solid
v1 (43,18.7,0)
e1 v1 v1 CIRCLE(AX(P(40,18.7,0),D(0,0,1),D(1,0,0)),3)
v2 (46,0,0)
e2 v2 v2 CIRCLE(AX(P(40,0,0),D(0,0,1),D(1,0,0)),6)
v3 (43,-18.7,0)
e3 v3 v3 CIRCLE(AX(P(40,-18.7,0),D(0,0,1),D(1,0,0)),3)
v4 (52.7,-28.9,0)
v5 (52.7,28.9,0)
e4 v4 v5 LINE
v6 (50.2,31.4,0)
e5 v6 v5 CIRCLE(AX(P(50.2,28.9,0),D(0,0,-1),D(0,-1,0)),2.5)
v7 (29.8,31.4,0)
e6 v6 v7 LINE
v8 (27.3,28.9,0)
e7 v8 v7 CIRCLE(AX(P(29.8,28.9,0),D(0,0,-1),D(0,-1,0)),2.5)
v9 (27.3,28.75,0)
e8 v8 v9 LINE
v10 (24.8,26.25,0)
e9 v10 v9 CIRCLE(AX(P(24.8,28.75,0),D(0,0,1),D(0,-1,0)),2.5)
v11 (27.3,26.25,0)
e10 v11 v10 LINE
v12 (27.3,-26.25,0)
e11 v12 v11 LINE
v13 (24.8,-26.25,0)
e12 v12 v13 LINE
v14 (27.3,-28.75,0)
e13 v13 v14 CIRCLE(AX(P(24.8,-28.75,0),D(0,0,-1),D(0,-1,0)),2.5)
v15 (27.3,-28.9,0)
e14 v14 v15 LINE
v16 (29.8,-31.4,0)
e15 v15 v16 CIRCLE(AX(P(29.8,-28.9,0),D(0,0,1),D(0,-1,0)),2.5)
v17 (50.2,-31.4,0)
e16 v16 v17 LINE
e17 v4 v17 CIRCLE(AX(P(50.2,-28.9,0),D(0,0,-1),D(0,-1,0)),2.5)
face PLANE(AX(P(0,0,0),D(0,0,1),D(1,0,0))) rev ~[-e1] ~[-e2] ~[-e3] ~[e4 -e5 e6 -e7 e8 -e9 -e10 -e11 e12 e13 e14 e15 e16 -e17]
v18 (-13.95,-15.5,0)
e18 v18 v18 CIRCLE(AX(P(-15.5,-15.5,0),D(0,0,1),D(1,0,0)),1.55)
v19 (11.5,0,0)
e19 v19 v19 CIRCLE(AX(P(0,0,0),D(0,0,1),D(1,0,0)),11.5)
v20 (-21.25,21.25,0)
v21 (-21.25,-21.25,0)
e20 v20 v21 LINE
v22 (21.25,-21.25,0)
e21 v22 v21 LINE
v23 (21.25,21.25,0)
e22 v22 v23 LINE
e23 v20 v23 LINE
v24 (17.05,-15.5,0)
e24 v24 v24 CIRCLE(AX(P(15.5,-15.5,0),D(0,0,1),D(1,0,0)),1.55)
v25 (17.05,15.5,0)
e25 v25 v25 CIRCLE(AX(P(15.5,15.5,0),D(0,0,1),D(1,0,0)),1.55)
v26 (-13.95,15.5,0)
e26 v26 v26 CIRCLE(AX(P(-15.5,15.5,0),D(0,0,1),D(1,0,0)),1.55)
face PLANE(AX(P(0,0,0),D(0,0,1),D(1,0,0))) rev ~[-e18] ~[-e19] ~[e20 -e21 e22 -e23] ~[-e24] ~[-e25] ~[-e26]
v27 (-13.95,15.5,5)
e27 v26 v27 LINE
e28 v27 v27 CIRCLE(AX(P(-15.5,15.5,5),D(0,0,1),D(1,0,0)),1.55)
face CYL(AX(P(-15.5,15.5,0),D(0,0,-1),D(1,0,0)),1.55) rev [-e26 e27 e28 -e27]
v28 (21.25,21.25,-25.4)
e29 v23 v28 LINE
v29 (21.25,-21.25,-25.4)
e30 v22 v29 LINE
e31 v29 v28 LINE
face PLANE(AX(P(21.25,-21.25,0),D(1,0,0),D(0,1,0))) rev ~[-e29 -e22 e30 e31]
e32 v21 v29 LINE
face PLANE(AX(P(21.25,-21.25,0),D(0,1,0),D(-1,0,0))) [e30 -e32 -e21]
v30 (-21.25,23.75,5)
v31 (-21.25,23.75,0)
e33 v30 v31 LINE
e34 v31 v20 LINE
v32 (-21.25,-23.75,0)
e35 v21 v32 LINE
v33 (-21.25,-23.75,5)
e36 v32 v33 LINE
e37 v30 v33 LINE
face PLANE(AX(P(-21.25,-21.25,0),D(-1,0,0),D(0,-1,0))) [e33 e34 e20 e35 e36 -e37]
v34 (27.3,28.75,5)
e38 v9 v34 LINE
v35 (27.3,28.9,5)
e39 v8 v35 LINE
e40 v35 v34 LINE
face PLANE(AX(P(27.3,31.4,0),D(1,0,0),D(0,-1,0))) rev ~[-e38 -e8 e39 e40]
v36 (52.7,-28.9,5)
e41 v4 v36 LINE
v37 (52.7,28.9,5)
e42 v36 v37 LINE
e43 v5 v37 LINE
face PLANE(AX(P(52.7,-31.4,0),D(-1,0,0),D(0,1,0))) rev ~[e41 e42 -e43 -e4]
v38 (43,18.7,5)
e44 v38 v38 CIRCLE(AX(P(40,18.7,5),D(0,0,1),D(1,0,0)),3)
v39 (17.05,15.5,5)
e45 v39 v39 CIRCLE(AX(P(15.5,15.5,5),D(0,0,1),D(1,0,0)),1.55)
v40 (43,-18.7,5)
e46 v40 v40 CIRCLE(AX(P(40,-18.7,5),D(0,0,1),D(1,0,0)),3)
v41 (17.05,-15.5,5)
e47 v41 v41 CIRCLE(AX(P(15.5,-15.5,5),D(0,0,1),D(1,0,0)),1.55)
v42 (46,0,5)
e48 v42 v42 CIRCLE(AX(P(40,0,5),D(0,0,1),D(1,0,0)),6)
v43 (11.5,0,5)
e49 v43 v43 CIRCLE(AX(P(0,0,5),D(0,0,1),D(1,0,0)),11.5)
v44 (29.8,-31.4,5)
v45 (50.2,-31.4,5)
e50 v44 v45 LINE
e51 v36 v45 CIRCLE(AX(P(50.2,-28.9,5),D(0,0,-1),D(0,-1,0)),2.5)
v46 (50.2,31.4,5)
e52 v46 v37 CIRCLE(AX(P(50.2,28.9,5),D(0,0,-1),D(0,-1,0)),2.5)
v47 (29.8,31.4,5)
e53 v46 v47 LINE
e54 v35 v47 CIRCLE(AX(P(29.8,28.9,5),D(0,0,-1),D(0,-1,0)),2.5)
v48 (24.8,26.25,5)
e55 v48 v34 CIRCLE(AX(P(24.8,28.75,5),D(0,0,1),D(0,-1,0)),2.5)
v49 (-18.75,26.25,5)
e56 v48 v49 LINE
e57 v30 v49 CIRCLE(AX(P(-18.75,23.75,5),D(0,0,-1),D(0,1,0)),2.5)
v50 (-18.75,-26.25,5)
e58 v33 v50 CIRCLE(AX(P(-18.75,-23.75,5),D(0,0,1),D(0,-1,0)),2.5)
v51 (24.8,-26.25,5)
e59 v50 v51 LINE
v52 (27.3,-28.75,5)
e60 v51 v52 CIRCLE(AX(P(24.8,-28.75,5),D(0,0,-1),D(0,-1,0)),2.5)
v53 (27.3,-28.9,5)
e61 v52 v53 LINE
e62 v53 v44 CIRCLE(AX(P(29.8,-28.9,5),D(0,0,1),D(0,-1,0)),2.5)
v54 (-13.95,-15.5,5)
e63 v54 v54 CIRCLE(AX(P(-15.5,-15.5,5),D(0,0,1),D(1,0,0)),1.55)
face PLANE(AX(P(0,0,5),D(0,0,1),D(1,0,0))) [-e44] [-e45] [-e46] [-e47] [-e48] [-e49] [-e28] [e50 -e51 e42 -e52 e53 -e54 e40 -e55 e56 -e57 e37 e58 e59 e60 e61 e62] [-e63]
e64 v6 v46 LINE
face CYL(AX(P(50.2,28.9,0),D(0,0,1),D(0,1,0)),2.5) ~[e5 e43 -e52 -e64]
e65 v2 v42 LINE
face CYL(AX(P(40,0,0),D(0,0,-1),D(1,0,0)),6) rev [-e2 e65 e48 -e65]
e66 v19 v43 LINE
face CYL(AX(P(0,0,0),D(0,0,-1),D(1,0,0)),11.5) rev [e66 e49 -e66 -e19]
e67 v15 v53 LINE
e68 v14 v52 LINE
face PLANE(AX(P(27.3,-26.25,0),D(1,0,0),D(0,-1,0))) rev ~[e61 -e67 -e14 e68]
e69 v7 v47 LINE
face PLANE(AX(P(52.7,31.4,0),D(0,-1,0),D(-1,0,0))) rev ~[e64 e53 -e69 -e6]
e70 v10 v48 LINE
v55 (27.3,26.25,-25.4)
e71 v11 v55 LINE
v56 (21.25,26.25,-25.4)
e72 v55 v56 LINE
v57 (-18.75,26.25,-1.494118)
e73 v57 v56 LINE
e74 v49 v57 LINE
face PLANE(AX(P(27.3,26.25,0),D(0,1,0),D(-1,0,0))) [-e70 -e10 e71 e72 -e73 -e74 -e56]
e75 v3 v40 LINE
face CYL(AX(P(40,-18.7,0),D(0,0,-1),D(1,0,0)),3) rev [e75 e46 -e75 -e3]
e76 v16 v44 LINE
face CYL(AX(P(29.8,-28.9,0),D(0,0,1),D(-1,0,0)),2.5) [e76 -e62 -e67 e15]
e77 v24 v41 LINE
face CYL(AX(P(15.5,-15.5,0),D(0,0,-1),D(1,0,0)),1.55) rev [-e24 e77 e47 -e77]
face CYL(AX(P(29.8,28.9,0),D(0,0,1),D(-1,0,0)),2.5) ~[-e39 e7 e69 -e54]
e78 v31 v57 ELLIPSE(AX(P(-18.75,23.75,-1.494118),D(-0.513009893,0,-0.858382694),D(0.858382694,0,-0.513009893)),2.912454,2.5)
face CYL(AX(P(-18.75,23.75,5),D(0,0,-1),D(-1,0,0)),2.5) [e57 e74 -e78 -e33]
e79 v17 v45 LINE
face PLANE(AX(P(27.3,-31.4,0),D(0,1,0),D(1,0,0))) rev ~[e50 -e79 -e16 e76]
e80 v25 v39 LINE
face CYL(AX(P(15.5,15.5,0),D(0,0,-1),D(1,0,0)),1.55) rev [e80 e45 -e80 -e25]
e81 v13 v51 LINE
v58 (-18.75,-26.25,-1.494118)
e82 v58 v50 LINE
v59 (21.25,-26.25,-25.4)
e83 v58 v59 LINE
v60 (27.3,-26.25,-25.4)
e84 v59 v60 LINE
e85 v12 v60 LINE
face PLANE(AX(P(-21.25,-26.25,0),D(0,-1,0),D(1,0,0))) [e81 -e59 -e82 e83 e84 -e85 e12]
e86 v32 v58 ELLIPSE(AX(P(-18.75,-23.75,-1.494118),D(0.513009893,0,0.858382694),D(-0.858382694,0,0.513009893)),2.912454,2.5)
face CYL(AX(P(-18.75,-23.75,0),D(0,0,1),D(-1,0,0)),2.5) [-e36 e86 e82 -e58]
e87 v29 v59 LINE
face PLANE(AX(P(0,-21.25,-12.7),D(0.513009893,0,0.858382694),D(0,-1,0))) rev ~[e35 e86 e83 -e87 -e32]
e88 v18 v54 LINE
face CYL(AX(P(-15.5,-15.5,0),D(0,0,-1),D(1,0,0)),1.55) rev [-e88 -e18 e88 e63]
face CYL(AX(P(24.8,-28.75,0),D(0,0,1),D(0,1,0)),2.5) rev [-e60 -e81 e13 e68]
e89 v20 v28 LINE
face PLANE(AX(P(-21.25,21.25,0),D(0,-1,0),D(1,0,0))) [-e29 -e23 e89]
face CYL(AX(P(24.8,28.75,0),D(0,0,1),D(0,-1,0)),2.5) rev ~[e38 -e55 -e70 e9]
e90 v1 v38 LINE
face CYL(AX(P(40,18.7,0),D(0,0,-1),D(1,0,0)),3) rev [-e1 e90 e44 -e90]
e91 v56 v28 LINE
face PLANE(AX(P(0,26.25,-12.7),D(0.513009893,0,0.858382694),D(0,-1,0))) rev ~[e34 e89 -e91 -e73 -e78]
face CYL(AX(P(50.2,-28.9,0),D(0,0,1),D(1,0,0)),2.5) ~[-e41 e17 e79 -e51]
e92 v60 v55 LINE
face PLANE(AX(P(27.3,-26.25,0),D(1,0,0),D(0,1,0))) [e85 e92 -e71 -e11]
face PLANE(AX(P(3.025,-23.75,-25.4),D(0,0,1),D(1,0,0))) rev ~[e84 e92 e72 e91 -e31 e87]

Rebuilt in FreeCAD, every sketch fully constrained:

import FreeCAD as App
import Part
import Sketcher
from FreeCAD import Vector


def edges_at(feature, points):
    """Names of the edges that pass closest to the given points."""
    edges = feature.Shape.Edges
    near = lambda p: min(range(len(edges)), key=lambda i: edges[i].distToShape(Part.Vertex(*p))[0])
    return sorted({f"Edge{near(p) + 1}" for p in points})

doc = App.newDocument("Part")
params = doc.addObject("Spreadsheet::Sheet", "Params")
for row, (alias, value) in enumerate([
    ("sketch1_diameter", "6 mm"),
    ("sketch1_diameter2", "23 mm"),
    ("sketch1_diameter3", "12 mm"),
    ("sketch1_diameter4", "3.1 mm"),
    ("sketch1_width", "25.4 mm"),
    ("pad1_length", "5 mm"),
    ("sketch2_height", "5 mm"),
    ("sketch2_width", "42.5 mm"),
    ("sketch2_width2", "48.55 mm"),
    ("pad2_length", "25.4 mm"),
    ("chamfer_size", "25.4 mm"),
    ("chamfer_size2", "42.5 mm"),
    ("fillet_radius", "2.5 mm"),
], start=1):
    params.set(f"A{row}", alias)
    params.set(f"B{row}", "=" + value)
    params.setAlias(f"B{row}", alias)

body = doc.addObject("PartDesign::Body", "Body")

sketch1 = body.newObject("Sketcher::SketchObject", "Sketch")
sketch1.AttachmentSupport = (doc.getObject("XY_Plane"), [""])
sketch1.MapMode = "FlatFace"
sketch1.addGeometry(Part.LineSegment(Vector(27.3, 26.2, 0), Vector(-21.2, 26.2, 0)), False)
sketch1.addGeometry(Part.LineSegment(Vector(-21.2, 26.2, 0), Vector(-21.2, -26.2, 0)), False)
sketch1.addGeometry(Part.LineSegment(Vector(-21.2, -26.2, 0), Vector(27.3, -26.2, 0)), False)
sketch1.addGeometry(Part.LineSegment(Vector(27.3, -26.2, 0), Vector(27.3, -31.4, 0)), False)
sketch1.addGeometry(Part.LineSegment(Vector(27.3, -31.4, 0), Vector(52.7, -31.4, 0)), False)
sketch1.addGeometry(Part.LineSegment(Vector(52.7, -31.4, 0), Vector(52.7, 31.4, 0)), False)
sketch1.addGeometry(Part.LineSegment(Vector(52.7, 31.4, 0), Vector(27.3, 31.4, 0)), False)
sketch1.addGeometry(Part.LineSegment(Vector(27.3, 31.4, 0), Vector(27.3, 26.2, 0)), False)
sketch1.addGeometry(Part.Circle(Vector(-15.5, -15.5, 0), Vector(0, 0, 1), 1.6), False)
sketch1.addGeometry(Part.Circle(Vector(15.5, -15.5, 0), Vector(0, 0, 1), 1.6), False)
sketch1.addGeometry(Part.Circle(Vector(40, -18.7, 0), Vector(0, 0, 1), 3), False)
sketch1.addGeometry(Part.Circle(Vector(0, 0, 0), Vector(0, 0, 1), 11.5), False)
sketch1.addGeometry(Part.Circle(Vector(-15.5, 15.5, 0), Vector(0, 0, 1), 1.6), False)
sketch1.addGeometry(Part.Circle(Vector(40, 0, 0), Vector(0, 0, 1), 6), False)
sketch1.addGeometry(Part.Circle(Vector(15.5, 15.5, 0), Vector(0, 0, 1), 1.6), False)
sketch1.addGeometry(Part.Circle(Vector(40, 18.7, 0), Vector(0, 0, 1), 3), False)
sketch1.addConstraint(Sketcher.Constraint("Coincident", 0, 2, 1, 1))
sketch1.addConstraint(Sketcher.Constraint("Coincident", 1, 2, 2, 1))
sketch1.addConstraint(Sketcher.Constraint("Coincident", 2, 2, 3, 1))
sketch1.addConstraint(Sketcher.Constraint("Coincident", 3, 2, 4, 1))
sketch1.addConstraint(Sketcher.Constraint("Coincident", 4, 2, 5, 1))
sketch1.addConstraint(Sketcher.Constraint("Coincident", 5, 2, 6, 1))
sketch1.addConstraint(Sketcher.Constraint("Coincident", 6, 2, 7, 1))
sketch1.addConstraint(Sketcher.Constraint("Coincident", 7, 2, 0, 1))
sketch1.addConstraint(Sketcher.Constraint("Horizontal", 0))
sketch1.addConstraint(Sketcher.Constraint("Vertical", 1))
sketch1.addConstraint(Sketcher.Constraint("Horizontal", 2))
sketch1.addConstraint(Sketcher.Constraint("Vertical", 3))
sketch1.addConstraint(Sketcher.Constraint("Horizontal", 4))
sketch1.addConstraint(Sketcher.Constraint("Vertical", 5))
sketch1.addConstraint(Sketcher.Constraint("Horizontal", 6))
sketch1.addConstraint(Sketcher.Constraint("Vertical", 7))
sketch1.addConstraint(Sketcher.Constraint("Coincident", 11, 3, -1, 1))
sketch1.addConstraint(Sketcher.Constraint("Equal", 8, 9))
sketch1.addConstraint(Sketcher.Constraint("Equal", 9, 12))
sketch1.addConstraint(Sketcher.Constraint("Equal", 12, 14))
sketch1.addConstraint(Sketcher.Constraint("Equal", 10, 15))
sketch1.addConstraint(Sketcher.Constraint("Symmetric", 9, 3, 12, 3, -1, 1))
sketch1.addConstraint(Sketcher.Constraint("Symmetric", 8, 3, 14, 3, -1, 1))
sketch1.addConstraint(Sketcher.Constraint("Symmetric", 8, 3, 9, 3, -2))
sketch1.addConstraint(Sketcher.Constraint("Symmetric", 10, 3, 15, 3, -1))
sketch1.addConstraint(Sketcher.Constraint("Symmetric", 3, 2, 6, 2, -1))
sketch1.addConstraint(Sketcher.Constraint("PointOnObject", 13, 3, -1))
sketch1.addConstraint(Sketcher.Constraint("Vertical", 10, 3, 13, 3))
sketch1.addConstraint(Sketcher.Constraint("Equal", 3, 7))
sketch1.addConstraint(Sketcher.Constraint("Diameter", 10, 6.0))
sketch1.addConstraint(Sketcher.Constraint("Diameter", 11, 23.0))
sketch1.addConstraint(Sketcher.Constraint("Diameter", 13, 12.0))
sketch1.addConstraint(Sketcher.Constraint("Diameter", 8, 3.1))
sketch1.addConstraint(Sketcher.Constraint("DistanceX", 4, 1, 4, 2, 25.4))
sketch1.addConstraint(Sketcher.Constraint("DistanceY", 1, 2, 1, 1, 52.5))
sketch1.addConstraint(Sketcher.Constraint("DistanceY", 5, 1, 5, 2, 62.8))
sketch1.addConstraint(Sketcher.Constraint("DistanceX", -1, 1, 10, 3, 40.0))
sketch1.addConstraint(Sketcher.Constraint("DistanceX", 8, 3, 9, 3, 31.0))
sketch1.addConstraint(Sketcher.Constraint("DistanceY", 8, 3, 12, 3, 31.0))
sketch1.addConstraint(Sketcher.Constraint("DistanceX", 0, 2, 0, 1, 48.55))
sketch1.addConstraint(Sketcher.Constraint("DistanceY", 10, 3, -1, 1, 18.7))
sketch1.addConstraint(Sketcher.Constraint("DistanceX", -1, 1, 2, 2, 27.3))
sketch1.setExpression("Constraints[29]", "Params.sketch1_diameter")
sketch1.setExpression("Constraints[30]", "Params.sketch1_diameter2")
sketch1.setExpression("Constraints[31]", "Params.sketch1_diameter3")
sketch1.setExpression("Constraints[32]", "Params.sketch1_diameter4")
sketch1.setExpression("Constraints[33]", "Params.sketch1_width")
pad1 = body.newObject("PartDesign::Pad", "Pad")
pad1.Profile = sketch1
pad1.setExpression("Length", "Params.pad1_length")

sketch2 = body.newObject("Sketcher::SketchObject", "Sketch001")
sketch2.AttachmentSupport = (doc.getObject("XY_Plane"), [""])
sketch2.MapMode = "FlatFace"
sketch2.addGeometry(Part.LineSegment(Vector(21, -21, 0), Vector(-21, -21, 0)), False)
sketch2.addGeometry(Part.LineSegment(Vector(-21, -21, 0), Vector(-21, -26, 0)), False)
sketch2.addGeometry(Part.LineSegment(Vector(-21, -26, 0), Vector(27, -26, 0)), False)
sketch2.addGeometry(Part.LineSegment(Vector(27, -26, 0), Vector(27, 26, 0)), False)
sketch2.addGeometry(Part.LineSegment(Vector(27, 26, 0), Vector(-21, 26, 0)), False)
sketch2.addGeometry(Part.LineSegment(Vector(-21, 26, 0), Vector(-21, 21, 0)), False)
sketch2.addGeometry(Part.LineSegment(Vector(-21, 21, 0), Vector(21, 21, 0)), False)
sketch2.addGeometry(Part.LineSegment(Vector(21, 21, 0), Vector(21, -21, 0)), False)
sketch2.addConstraint(Sketcher.Constraint("Coincident", 0, 2, 1, 1))
sketch2.addConstraint(Sketcher.Constraint("Coincident", 1, 2, 2, 1))
sketch2.addConstraint(Sketcher.Constraint("Coincident", 2, 2, 3, 1))
sketch2.addConstraint(Sketcher.Constraint("Coincident", 3, 2, 4, 1))
sketch2.addConstraint(Sketcher.Constraint("Coincident", 4, 2, 5, 1))
sketch2.addConstraint(Sketcher.Constraint("Coincident", 5, 2, 6, 1))
sketch2.addConstraint(Sketcher.Constraint("Coincident", 6, 2, 7, 1))
sketch2.addConstraint(Sketcher.Constraint("Coincident", 7, 2, 0, 1))
sketch2.addConstraint(Sketcher.Constraint("Horizontal", 0))
sketch2.addConstraint(Sketcher.Constraint("Vertical", 1))
sketch2.addConstraint(Sketcher.Constraint("Horizontal", 2))
sketch2.addConstraint(Sketcher.Constraint("Vertical", 3))
sketch2.addConstraint(Sketcher.Constraint("Horizontal", 4))
sketch2.addConstraint(Sketcher.Constraint("Vertical", 5))
sketch2.addConstraint(Sketcher.Constraint("Horizontal", 6))
sketch2.addConstraint(Sketcher.Constraint("Vertical", 7))
sketch2.addConstraint(Sketcher.Constraint("Symmetric", 0, 2, 6, 2, -1, 1))
sketch2.addConstraint(Sketcher.Constraint("Symmetric", 1, 2, 4, 2, -1))
sketch2.addConstraint(Sketcher.Constraint("Equal", 6, 7))
sketch2.addConstraint(Sketcher.Constraint("DistanceY", 1, 2, 1, 1, 5.0))
sketch2.addConstraint(Sketcher.Constraint("DistanceX", 0, 2, 0, 1, 42.5))
sketch2.addConstraint(Sketcher.Constraint("DistanceX", 2, 1, 2, 2, 48.55))
sketch2.setExpression("Constraints[19]", "Params.sketch2_height")
sketch2.setExpression("Constraints[20]", "Params.sketch2_width")
sketch2.setExpression("Constraints[21]", "Params.sketch2_width2")
pad2 = body.newObject("PartDesign::Pad", "Pad001")
pad2.Profile = sketch2
pad2.setExpression("Length", "Params.pad2_length")
pad2.Reversed = True
doc.recompute()

chamfer = body.newObject("PartDesign::Chamfer", "Chamfer")
chamfer.Base = (pad2, edges_at(pad2, [(-21.25, -23.75, -25.4), (-21.25, 23.75, -25.4)]))
chamfer.ChamferType = "Two distances"
chamfer.setExpression("Size", "Params.chamfer_size")
chamfer.setExpression("Size2", "Params.chamfer_size2")
chamfer.FlipDirection = True
doc.recompute()

fillet = body.newObject("PartDesign::Fillet", "Fillet")
fillet.Base = (chamfer, edges_at(chamfer, [
    (27.3, 31.4, 2.5),
    (52.7, 31.4, 2.5),
    (27.3, 26.25, 2.5),
    (-21.25, 26.25, 2.5),
    (52.7, -31.4, 2.5),
    (27.3, -31.4, 2.5),
    (27.3, -26.25, 2.5),
    (-21.25, -26.25, 2.5),
]))
fillet.setExpression("Radius", "Params.fillet_radius")

doc.recompute()
